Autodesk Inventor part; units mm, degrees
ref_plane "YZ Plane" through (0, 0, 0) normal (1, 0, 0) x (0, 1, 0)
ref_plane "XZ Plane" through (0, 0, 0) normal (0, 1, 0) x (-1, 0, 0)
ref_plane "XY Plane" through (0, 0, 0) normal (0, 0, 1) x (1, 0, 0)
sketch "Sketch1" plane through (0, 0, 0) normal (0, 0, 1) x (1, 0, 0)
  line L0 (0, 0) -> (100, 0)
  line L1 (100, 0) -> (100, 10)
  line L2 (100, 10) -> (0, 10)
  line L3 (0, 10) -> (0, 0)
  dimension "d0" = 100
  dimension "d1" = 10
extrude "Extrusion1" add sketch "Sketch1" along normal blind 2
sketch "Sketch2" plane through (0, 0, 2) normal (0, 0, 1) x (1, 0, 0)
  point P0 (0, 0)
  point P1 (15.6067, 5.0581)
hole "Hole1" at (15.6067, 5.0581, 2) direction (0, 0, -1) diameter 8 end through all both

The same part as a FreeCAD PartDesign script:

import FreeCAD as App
import Part
import Sketcher


def add_polygon(sketch, points):
    """Adds a closed chain of lines whose ends are joined by coincident constraints."""
    first, n = sketch.GeometryCount, len(points)
    for a, b in zip(points, points[1:] + points[:1]):
        sketch.addGeometry(Part.LineSegment(App.Vector(*a, 0), App.Vector(*b, 0)), False)
    for i in range(n):
        sketch.addConstraint(Sketcher.Constraint("Coincident", first + i, 2, first + (i + 1) % n, 1))

doc = App.newDocument("Part")
body = doc.addObject("PartDesign::Body", "Body")

sketch1 = body.newObject("Sketcher::SketchObject", "Sketch")
sketch1.AttachmentSupport = (doc.getObject("XY_Plane"), [""])
sketch1.MapMode = "FlatFace"
add_polygon(sketch1, [(0, 10), (0, 0), (100, 0), (100, 10)])
sketch1.addConstraint([
    Sketcher.Constraint("Vertical", 0),
    Sketcher.Constraint("Horizontal", 1),
    Sketcher.Constraint("Vertical", 2),
    Sketcher.Constraint("Horizontal", 3),
    Sketcher.Constraint("Coincident", 0, 2, -1, 1),
    Sketcher.Constraint("DistanceX", 1, 1, 1, 2, 100.0),
    Sketcher.Constraint("DistanceY", 0, 2, 0, 1, 10.0),
])
pad1 = body.newObject("PartDesign::Pad", "Pad")
pad1.Profile = sketch1
pad1.Length = 2

sketch2 = body.newObject("Sketcher::SketchObject", "Sketch001")
sketch2.AttachmentSupport = (doc.getObject("XY_Plane"), [""])
sketch2.MapMode = "FlatFace"
sketch2.AttachmentOffset = App.Placement(App.Vector(0, 0, 2), App.Rotation())
sketch2.addGeometry(Part.Circle(App.Vector(15.6067, 5.0581, 0), App.Vector(0, 0, 1), 4), False)
sketch2.addConstraint([
    Sketcher.Constraint("Diameter", 0, 8.0),
    Sketcher.Constraint("DistanceY", -1, 1, 0, 3, 5.058),
    Sketcher.Constraint("DistanceX", -1, 1, 0, 3, 15.6067),
])
doc.recompute()
hole = body.newObject("PartDesign::Hole", "Hole")
hole.Profile = sketch2
hole.ThreadType = "None"
hole.Diameter = 8
hole.DepthType = "ThroughAll"

doc.recompute()
